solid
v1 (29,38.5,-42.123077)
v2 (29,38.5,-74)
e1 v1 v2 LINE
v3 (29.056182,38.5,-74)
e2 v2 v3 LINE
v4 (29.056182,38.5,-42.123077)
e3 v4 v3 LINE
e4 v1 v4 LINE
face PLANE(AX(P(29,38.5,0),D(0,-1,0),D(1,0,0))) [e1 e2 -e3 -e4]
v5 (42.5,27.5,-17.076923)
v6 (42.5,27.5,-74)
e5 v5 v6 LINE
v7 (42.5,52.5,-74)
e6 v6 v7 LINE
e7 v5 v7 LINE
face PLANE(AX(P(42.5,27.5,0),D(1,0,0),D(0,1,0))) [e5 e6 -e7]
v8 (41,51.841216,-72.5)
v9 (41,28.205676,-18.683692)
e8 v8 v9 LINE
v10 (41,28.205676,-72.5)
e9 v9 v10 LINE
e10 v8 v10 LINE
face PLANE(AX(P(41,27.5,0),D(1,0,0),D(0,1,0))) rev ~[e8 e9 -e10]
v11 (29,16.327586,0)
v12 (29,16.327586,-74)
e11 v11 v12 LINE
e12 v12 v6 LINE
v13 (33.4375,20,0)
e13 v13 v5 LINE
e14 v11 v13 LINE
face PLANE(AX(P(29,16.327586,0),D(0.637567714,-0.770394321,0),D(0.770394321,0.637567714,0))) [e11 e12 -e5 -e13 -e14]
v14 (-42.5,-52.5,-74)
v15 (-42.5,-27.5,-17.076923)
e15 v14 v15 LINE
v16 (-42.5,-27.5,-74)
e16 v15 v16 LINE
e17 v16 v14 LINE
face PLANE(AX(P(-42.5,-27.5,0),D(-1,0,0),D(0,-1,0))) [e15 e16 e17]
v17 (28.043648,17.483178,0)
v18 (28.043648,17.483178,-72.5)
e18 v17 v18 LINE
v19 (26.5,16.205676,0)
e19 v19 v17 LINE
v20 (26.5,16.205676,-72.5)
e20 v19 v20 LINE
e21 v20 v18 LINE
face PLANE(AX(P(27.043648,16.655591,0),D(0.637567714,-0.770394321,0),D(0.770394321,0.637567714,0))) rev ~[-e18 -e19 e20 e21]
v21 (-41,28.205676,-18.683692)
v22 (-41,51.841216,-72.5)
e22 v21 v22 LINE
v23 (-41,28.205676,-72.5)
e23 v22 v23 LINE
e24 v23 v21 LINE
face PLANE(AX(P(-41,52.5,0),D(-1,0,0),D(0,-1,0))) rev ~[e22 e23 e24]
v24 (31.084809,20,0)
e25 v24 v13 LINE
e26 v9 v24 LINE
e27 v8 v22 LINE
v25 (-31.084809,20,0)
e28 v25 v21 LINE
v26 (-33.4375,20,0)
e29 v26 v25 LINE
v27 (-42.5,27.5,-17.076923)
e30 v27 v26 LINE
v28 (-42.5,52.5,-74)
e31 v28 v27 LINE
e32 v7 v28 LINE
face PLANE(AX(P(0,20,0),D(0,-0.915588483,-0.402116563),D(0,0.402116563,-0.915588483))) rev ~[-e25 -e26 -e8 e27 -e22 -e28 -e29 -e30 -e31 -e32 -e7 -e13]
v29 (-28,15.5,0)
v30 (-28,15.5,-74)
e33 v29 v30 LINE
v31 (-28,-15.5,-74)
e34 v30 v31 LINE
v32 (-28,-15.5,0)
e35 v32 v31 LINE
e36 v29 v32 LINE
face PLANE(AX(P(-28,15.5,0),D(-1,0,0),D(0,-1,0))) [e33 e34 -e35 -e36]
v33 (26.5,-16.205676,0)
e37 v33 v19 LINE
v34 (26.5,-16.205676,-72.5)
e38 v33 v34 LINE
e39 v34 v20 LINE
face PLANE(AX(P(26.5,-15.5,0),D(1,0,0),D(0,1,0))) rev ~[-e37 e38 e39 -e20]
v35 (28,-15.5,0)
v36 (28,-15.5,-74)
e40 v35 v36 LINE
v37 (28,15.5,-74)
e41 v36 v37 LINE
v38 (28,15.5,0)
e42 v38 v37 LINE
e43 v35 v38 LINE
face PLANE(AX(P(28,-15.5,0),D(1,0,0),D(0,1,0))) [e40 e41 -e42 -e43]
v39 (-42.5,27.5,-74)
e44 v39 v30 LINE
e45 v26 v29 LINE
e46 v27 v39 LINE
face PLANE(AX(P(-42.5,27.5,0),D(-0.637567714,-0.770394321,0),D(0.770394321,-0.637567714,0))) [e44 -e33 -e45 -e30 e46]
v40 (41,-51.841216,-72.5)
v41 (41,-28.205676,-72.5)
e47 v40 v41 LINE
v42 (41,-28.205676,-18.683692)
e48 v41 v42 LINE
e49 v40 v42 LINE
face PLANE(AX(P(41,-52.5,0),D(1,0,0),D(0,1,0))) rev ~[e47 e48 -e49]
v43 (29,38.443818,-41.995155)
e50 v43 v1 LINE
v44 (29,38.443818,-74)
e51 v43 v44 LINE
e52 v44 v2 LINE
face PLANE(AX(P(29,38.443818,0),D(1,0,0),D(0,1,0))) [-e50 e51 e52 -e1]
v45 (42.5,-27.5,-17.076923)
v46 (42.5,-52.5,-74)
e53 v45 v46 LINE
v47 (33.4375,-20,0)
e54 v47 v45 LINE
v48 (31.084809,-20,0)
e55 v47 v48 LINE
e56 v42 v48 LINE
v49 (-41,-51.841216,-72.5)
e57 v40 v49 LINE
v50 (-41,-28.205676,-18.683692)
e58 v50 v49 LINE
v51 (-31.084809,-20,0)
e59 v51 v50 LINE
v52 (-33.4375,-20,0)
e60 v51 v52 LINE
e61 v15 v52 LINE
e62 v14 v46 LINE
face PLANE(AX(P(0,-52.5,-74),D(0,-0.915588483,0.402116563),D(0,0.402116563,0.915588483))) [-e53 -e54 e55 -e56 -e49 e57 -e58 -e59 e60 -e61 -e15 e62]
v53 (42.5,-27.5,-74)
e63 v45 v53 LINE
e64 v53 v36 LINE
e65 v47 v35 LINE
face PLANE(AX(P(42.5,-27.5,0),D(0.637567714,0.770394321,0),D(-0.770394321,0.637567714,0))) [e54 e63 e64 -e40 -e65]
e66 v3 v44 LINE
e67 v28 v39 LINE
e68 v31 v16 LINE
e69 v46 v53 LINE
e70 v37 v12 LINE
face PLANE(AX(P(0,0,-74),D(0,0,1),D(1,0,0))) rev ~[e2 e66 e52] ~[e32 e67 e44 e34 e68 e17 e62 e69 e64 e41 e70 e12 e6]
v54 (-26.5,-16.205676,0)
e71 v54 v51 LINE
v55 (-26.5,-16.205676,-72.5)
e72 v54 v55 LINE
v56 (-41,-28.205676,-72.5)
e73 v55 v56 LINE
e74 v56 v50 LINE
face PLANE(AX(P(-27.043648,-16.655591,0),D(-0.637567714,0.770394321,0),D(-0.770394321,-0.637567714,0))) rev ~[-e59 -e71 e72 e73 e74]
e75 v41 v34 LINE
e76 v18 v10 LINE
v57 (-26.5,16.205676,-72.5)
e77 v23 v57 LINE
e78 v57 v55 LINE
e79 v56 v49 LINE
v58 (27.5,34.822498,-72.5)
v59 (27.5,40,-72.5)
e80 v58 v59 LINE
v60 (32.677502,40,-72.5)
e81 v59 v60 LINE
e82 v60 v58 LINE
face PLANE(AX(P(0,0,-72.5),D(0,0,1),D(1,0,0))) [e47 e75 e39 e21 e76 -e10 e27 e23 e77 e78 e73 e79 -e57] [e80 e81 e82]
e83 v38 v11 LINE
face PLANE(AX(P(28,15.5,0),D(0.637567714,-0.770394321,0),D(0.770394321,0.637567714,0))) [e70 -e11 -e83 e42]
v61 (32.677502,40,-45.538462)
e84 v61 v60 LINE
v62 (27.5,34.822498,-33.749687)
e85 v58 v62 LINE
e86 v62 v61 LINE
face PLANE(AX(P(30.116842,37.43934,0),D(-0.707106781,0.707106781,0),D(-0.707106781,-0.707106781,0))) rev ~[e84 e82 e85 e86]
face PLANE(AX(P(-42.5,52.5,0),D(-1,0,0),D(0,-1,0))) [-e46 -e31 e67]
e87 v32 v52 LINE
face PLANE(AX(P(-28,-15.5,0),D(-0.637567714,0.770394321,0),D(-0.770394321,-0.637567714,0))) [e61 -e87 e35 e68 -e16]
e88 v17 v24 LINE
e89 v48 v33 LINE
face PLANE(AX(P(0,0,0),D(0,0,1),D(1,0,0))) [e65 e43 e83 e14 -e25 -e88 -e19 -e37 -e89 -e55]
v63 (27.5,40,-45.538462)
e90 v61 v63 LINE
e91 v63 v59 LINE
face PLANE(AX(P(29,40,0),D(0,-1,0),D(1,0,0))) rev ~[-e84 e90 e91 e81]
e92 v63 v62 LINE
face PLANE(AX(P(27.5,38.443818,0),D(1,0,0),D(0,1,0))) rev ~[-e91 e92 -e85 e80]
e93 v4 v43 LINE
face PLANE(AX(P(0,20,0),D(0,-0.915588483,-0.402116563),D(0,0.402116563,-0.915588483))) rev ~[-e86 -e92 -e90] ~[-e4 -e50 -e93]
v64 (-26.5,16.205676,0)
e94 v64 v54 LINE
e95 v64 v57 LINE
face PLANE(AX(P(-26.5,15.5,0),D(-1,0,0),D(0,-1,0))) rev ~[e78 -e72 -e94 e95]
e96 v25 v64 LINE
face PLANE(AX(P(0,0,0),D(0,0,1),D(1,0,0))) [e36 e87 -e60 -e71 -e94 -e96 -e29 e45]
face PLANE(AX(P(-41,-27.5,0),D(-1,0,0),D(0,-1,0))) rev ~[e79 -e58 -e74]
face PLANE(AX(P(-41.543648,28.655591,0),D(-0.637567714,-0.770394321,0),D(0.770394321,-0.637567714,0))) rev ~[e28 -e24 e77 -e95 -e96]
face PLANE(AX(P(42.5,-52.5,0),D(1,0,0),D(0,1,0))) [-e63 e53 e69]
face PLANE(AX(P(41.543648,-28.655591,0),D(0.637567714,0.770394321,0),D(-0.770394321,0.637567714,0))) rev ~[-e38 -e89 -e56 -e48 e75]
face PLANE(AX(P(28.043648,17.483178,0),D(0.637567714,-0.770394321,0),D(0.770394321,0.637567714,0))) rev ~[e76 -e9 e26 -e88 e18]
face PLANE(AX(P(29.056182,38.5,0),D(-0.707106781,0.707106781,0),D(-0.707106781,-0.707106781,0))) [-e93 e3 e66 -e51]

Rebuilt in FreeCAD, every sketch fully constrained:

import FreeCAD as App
import Part
import Sketcher

V = App.Vector
Q = App.Units.Quantity


def faces_at(feature, points):
    """Names of the faces that lie closest to the given points."""
    faces = feature.Shape.Faces
    near = lambda p: min(range(len(faces)), key=lambda i: faces[i].distToShape(Part.Vertex(*p))[0])
    return sorted({f"Face{near(p) + 1}" for p in points})


def add_polygon(sketch, points):
    """Adds a closed chain of lines whose ends are joined by coincident constraints."""
    first, n = sketch.GeometryCount, len(points)
    for a, b in zip(points, points[1:] + points[:1]):
        sketch.addGeometry(Part.LineSegment(App.Vector(*a, 0), App.Vector(*b, 0)), False)
    for i in range(n):
        sketch.addConstraint(Sketcher.Constraint("Coincident", first + i, 2, first + (i + 1) % n, 1))

doc = App.newDocument("Part")
body = doc.addObject("PartDesign::Body", "Body")

# Sketch on XY plane
sketch1 = body.newObject("Sketcher::SketchObject", "Sketch")
sketch1.AttachmentSupport = (doc.getObject("XY_Plane"), [""])
sketch1.MapMode = "FlatFace"
add_polygon(sketch1, [(42.5, 27.5), (42.5, 52.5), (-42.5, 52.5), (-42.5, 27.5), (-28, 15.5), (-28, -15.5), (-42.5, -27.5), (-42.5, -52.5), (42.5, -52.5), (42.5, -27.5), (28, -15.5), (28, 15.5), (29, 16.327586)])  # lines 0-12
add_polygon(sketch1, [(29, 38.443818), (29, 38.5), (29.056182, 38.5)])  # lines 13-15
sketch1.addConstraint([
    Sketcher.Constraint("Vertical", 0),
    Sketcher.Constraint("Horizontal", 1),
    Sketcher.Constraint("Vertical", 2),
    Sketcher.Constraint("Vertical", 4),
    Sketcher.Constraint("Vertical", 6),
    Sketcher.Constraint("Horizontal", 7),
    Sketcher.Constraint("Vertical", 8),
    Sketcher.Constraint("Vertical", 10),
    Sketcher.Constraint("Vertical", 13),
    Sketcher.Constraint("Horizontal", 14),
    Sketcher.Constraint("Symmetric", 0, 2, 6, 2, -1, 1),
    Sketcher.Constraint("Symmetric", 2, 2, 8, 2, -1, 1),
    Sketcher.Constraint("Symmetric", 3, 2, 9, 2, -1, 1),
    Sketcher.Constraint("Symmetric", 5, 2, 8, 2, -2),
    Sketcher.Constraint("Parallel", 5, 11),
    Sketcher.Constraint("Parallel", 11, 12),
    Sketcher.Constraint("Horizontal", 4, 2, 9, 2),
    Sketcher.Constraint("Horizontal", 3, 2, 10, 2),
    Sketcher.Constraint("Vertical", 11, 2, 13, 2),
    Sketcher.Constraint("Equal", 14, 13),
    Sketcher.Constraint("DistanceX", 1, 2, 1, 1, Q("85 mm")),
    Sketcher.Constraint("DistanceY", 0, 1, 0, 2, Q("25 mm")),
    Sketcher.Constraint("DistanceY", 4, 2, 4, 1, Q("31 mm")),
    Sketcher.Constraint("DistanceX", 3, 2, -1, 1, Q("28 mm")),
    Sketcher.Constraint("DistanceX", -1, 1, 11, 2, Q("29 mm")),
    Sketcher.Constraint("DistanceY", 3, 2, 2, 2, Q("12 mm")),
    Sketcher.Constraint("DistanceY", 12, 2, 13, 2, Q("11 mm")),
    Sketcher.Constraint("DistanceX", 14, 1, 14, 2, Q("0.056182 mm")),
])
pad1 = body.newObject("PartDesign::Pad", "Pad")
pad1.Profile = sketch1
pad1.Length = 74
pad1.Reversed = True

# Sketch on YZ plane
sketch2 = body.newObject("Sketcher::SketchObject", "Sketch001")
sketch2.AttachmentSupport = (doc.getObject("YZ_Plane"), [""])
sketch2.MapMode = "FlatFace"
add_polygon(sketch2, [(-52.5, 0), (-52.5, -74), (-20, 0)])  # lines 0-2
add_polygon(sketch2, [(52.893754, 0), (20, 0), (52.5, -74)])  # lines 3-5
sketch2.addConstraint([
    Sketcher.Constraint("Vertical", 0),
    Sketcher.Constraint("Horizontal", 2),
    Sketcher.Constraint("Horizontal", 3),
    Sketcher.Constraint("Symmetric", 1, 2, 3, 2, -1, 1),
    Sketcher.Constraint("Symmetric", 0, 2, 4, 2, -2),
    Sketcher.Constraint("PointOnObject", 1, 2, -1),
    Sketcher.Constraint("DistanceY", 0, 2, 0, 1, Q("74 mm")),
    Sketcher.Constraint("DistanceX", 2, 2, 2, 1, Q("32.5 mm")),
    Sketcher.Constraint("DistanceX", 1, 2, -1, 1, Q("20 mm")),
    Sketcher.Constraint("DistanceX", 3, 2, 3, 1, Q("32.893754 mm")),
])
pocket1 = body.newObject("PartDesign::Pocket", "Pocket")
pocket1.Profile = sketch2
pocket1.Length = 100
pocket1.Midplane = True
doc.recompute()

thickness = body.newObject("PartDesign::Thickness", "Thickness")
thickness.Base = (pocket1, faces_at(pocket1, [(0, 0, 0), (0, -36.25, -37), (0, 36.25, -37)]))
thickness.Value = 1.5
thickness.Reversed = True
thickness.Join = "Intersection"

doc.recompute()
